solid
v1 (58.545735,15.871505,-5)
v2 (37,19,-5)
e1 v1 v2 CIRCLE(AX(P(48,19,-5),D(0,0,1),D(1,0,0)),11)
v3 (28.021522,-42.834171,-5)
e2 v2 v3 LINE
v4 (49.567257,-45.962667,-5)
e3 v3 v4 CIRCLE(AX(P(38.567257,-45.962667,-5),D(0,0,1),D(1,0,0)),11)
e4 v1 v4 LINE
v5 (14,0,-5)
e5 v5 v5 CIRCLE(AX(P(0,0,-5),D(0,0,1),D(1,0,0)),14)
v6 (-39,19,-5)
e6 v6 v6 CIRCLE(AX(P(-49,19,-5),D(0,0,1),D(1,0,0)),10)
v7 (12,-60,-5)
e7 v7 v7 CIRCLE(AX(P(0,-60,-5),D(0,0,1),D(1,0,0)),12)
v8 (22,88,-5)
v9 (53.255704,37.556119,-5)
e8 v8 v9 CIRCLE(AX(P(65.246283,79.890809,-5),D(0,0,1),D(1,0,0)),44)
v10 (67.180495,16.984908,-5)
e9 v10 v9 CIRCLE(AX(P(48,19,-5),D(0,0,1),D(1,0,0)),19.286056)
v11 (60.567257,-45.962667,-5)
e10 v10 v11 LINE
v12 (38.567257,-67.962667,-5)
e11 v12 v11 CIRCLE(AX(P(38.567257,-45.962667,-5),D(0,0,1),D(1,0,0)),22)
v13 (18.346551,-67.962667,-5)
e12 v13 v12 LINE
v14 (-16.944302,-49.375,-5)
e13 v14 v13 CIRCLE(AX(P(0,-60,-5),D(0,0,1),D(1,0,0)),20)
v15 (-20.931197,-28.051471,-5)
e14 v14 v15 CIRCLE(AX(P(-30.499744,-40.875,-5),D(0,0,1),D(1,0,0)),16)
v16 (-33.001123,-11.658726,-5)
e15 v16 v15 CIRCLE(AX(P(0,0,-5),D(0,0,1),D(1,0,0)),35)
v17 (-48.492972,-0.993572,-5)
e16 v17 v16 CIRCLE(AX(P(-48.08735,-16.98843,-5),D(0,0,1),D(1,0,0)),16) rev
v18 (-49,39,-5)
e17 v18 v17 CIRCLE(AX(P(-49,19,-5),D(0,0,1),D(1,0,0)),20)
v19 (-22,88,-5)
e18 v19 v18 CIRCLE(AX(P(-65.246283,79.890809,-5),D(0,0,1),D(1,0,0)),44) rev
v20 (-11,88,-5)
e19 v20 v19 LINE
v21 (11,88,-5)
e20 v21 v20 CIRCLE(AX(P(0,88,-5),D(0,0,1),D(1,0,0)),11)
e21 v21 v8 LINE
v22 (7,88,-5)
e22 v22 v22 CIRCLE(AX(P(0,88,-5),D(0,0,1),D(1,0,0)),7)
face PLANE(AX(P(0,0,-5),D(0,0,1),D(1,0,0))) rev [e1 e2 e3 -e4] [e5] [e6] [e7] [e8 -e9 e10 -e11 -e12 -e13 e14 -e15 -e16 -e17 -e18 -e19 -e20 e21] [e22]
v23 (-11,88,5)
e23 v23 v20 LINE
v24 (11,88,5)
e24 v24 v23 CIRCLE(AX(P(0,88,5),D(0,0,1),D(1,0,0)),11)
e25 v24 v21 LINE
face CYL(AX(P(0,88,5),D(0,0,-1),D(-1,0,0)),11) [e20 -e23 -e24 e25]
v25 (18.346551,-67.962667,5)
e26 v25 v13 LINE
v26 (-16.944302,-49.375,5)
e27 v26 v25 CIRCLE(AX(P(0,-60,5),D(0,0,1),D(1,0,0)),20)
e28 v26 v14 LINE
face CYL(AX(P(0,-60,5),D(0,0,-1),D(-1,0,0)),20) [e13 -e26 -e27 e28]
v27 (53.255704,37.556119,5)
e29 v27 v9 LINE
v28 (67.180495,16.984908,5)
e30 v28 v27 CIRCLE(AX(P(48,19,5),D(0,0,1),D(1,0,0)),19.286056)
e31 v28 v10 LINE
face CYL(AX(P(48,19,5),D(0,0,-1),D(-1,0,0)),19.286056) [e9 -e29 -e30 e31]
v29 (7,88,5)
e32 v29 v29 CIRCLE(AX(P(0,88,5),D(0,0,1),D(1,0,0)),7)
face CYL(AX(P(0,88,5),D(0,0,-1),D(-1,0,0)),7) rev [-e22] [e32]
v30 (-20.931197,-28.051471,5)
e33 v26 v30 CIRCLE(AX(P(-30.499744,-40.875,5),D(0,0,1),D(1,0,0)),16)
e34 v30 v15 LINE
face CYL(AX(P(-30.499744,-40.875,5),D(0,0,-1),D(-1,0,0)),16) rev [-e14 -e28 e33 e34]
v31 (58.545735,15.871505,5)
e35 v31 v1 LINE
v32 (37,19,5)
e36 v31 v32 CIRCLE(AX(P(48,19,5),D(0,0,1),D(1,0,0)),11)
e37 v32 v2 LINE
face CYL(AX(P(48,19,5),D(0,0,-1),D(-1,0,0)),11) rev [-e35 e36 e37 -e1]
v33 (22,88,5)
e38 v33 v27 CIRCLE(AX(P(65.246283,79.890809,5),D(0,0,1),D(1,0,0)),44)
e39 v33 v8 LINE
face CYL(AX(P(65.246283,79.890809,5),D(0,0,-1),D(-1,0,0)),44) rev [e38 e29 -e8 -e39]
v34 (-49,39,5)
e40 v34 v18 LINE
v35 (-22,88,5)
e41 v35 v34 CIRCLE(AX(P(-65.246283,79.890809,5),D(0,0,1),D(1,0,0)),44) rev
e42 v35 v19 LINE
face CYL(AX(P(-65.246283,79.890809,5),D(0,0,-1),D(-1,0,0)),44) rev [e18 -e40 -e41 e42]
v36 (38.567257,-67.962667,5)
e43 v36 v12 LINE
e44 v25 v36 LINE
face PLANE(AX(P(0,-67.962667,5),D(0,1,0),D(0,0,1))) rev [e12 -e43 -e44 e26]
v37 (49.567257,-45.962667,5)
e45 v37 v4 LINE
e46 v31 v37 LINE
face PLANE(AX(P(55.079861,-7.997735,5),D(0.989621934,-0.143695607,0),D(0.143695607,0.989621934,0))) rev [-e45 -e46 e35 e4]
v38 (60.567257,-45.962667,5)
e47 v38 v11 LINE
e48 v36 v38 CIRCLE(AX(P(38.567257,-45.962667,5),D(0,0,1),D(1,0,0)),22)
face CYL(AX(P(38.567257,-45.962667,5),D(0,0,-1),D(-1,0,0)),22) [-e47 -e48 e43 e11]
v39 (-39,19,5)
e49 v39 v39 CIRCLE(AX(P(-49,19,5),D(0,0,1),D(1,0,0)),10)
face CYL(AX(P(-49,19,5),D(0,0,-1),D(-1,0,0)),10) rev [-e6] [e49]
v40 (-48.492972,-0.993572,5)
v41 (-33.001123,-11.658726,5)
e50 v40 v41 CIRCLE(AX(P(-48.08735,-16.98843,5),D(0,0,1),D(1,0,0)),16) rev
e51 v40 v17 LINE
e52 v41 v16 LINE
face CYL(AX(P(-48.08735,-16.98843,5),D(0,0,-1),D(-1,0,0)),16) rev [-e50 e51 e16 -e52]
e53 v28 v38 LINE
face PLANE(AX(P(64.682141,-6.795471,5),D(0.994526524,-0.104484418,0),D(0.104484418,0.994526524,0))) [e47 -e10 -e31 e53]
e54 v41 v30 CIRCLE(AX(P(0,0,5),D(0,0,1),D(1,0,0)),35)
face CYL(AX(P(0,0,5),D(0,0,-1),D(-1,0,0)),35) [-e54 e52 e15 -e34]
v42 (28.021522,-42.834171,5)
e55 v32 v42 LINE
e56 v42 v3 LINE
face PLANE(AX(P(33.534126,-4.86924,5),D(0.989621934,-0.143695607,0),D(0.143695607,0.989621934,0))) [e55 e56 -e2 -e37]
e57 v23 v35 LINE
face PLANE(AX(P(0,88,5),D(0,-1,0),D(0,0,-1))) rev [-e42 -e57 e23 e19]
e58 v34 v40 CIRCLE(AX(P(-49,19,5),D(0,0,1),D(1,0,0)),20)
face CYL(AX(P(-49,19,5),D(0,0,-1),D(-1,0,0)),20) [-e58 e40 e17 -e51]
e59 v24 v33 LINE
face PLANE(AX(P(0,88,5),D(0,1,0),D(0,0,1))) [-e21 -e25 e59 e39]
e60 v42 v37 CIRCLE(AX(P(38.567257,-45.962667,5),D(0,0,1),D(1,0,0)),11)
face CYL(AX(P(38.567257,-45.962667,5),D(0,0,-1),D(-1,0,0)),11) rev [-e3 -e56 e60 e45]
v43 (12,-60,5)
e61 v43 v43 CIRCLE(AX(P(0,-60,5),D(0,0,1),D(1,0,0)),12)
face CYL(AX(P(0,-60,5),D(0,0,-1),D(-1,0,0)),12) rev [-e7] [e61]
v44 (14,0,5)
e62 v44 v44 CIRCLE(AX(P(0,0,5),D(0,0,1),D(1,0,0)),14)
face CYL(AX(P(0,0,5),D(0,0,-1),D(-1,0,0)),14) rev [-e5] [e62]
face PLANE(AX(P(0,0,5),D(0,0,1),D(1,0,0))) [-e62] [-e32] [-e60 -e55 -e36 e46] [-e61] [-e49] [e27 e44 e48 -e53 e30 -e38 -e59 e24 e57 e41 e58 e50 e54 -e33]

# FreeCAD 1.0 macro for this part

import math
import FreeCAD as App
import Part
import Sketcher
from FreeCAD import Vector

doc = App.newDocument("Part")
body = doc.addObject("PartDesign::Body", "Body")

sketch1 = body.newObject("Sketcher::SketchObject", "Sketch")
sketch1.AttachmentSupport = (doc.getObject("XY_Plane"), [""])
sketch1.MapMode = "FlatFace"
sketch1.addGeometry(Part.ArcOfCircle(Part.Circle(Vector(0, 88, 0), Vector(0, 0, 1), 11), math.radians(0), math.radians(180)), False)
sketch1.addGeometry(Part.LineSegment(Vector(-11, 88, 0), Vector(-22, 88, 0)), False)
sketch1.addGeometry(Part.ArcOfCircle(Part.Circle(Vector(-65.246283, 79.890809, 0), Vector(0, 0, 1), 44), math.radians(-68.331634), math.radians(10.620311)), False)
sketch1.addGeometry(Part.ArcOfCircle(Part.Circle(Vector(-49, 19, 0), Vector(0, 0, 1), 20), math.radians(90), math.radians(271.452683)), False)
sketch1.addGeometry(Part.ArcOfCircle(Part.Circle(Vector(-48.08735, -16.98843, 0), Vector(0, 0, 1), 16), math.radians(19.457434), math.radians(91.452683)), False)
sketch1.addGeometry(Part.ArcOfCircle(Part.Circle(Vector(0, 0, 0), Vector(0, 0, 1), 35), math.radians(-160.542566), math.radians(-126.729236)), False)
sketch1.addGeometry(Part.ArcOfCircle(Part.Circle(Vector(-30.499744, -40.875, 0), Vector(0, 0, 1), 16), math.radians(-32.089951), math.radians(53.270764)), False)
sketch1.addGeometry(Part.ArcOfCircle(Part.Circle(Vector(0, -60, 0), Vector(0, 0, 1), 20), math.radians(147.910049), math.radians(336.538464)), False)
sketch1.addGeometry(Part.LineSegment(Vector(18.346551, -67.962667, 0), Vector(38.567257, -67.962667, 0)), False)
sketch1.addGeometry(Part.ArcOfCircle(Part.Circle(Vector(38.567257, -45.962667, 0), Vector(0, 0, 1), 22), math.radians(-90), math.radians(0)), False)
sketch1.addGeometry(Part.LineSegment(Vector(60.567257, -45.962667, 0), Vector(67.180495, 16.984908, 0)), False)
sketch1.addGeometry(Part.ArcOfCircle(Part.Circle(Vector(48, 19, 0), Vector(0, 0, 1), 19.286056), math.radians(-5.997462), math.radians(74.18613)), False)
sketch1.addGeometry(Part.ArcOfCircle(Part.Circle(Vector(65.246283, 79.890809, 0), Vector(0, 0, 1), 44), math.radians(169.379689), math.radians(254.18613)), False)
sketch1.addGeometry(Part.LineSegment(Vector(22, 88, 0), Vector(11, 88, 0)), False)
sketch1.addGeometry(Part.Circle(Vector(0, -60, 0), Vector(0, 0, 1), 12), False)
sketch1.addGeometry(Part.Circle(Vector(0, 0, 0), Vector(0, 0, 1), 14), False)
sketch1.addGeometry(Part.LineSegment(Vector(28.021522, -42.834171, 0), Vector(34.793025, 3.800712, 0)), False)
sketch1.addGeometry(Part.LineSegment(Vector(34.793025, 3.800712, 0), Vector(37, 19, 0)), False)
sketch1.addGeometry(Part.ArcOfCircle(Part.Circle(Vector(48, 19, 0), Vector(0, 0, 1), 11), math.radians(0), math.radians(180)), False)
sketch1.addGeometry(Part.ArcOfCircle(Part.Circle(Vector(48, 19, 0), Vector(0, 0, 1), 11), math.radians(-16.523504), math.radians(0)), False)
sketch1.addGeometry(Part.LineSegment(Vector(58.545735, 15.871505, 0), Vector(49.567257, -45.962667, 0)), False)
sketch1.addGeometry(Part.ArcOfCircle(Part.Circle(Vector(38.567257, -45.962667, 0), Vector(0, 0, 1), 11), math.radians(180), math.radians(360)), False)
sketch1.addGeometry(Part.ArcOfCircle(Part.Circle(Vector(38.567257, -45.962667, 0), Vector(0, 0, 1), 11), math.radians(163.476496), math.radians(180)), False)
sketch1.addGeometry(Part.Circle(Vector(-49, 19, 0), Vector(0, 0, 1), 10), False)
sketch1.addGeometry(Part.Circle(Vector(0, 88, 0), Vector(0, 0, 1), 7), False)
sketch1.addConstraint(Sketcher.Constraint("Coincident", 0, 2, 1, 1))
sketch1.addConstraint(Sketcher.Constraint("Coincident", 1, 2, 2, 2))
sketch1.addConstraint(Sketcher.Constraint("Coincident", 2, 1, 3, 1))
sketch1.addConstraint(Sketcher.Constraint("Tangent", 3, 2, 4, 2))
sketch1.addConstraint(Sketcher.Constraint("Tangent", 4, 1, 5, 1))
sketch1.addConstraint(Sketcher.Constraint("Tangent", 5, 2, 6, 2))
sketch1.addConstraint(Sketcher.Constraint("Tangent", 6, 1, 7, 1))
sketch1.addConstraint(Sketcher.Constraint("Coincident", 7, 2, 8, 1))
sketch1.addConstraint(Sketcher.Constraint("Tangent", 8, 2, 9, 1))
sketch1.addConstraint(Sketcher.Constraint("Coincident", 9, 2, 10, 1))
sketch1.addConstraint(Sketcher.Constraint("Tangent", 10, 2, 11, 1))
sketch1.addConstraint(Sketcher.Constraint("Tangent", 11, 2, 12, 2))
sketch1.addConstraint(Sketcher.Constraint("Coincident", 12, 1, 13, 1))
sketch1.addConstraint(Sketcher.Constraint("Coincident", 13, 2, 0, 1))
sketch1.addConstraint(Sketcher.Constraint("Coincident", 16, 2, 17, 1))
sketch1.addConstraint(Sketcher.Constraint("Coincident", 17, 2, 18, 2))
sketch1.addConstraint(Sketcher.Constraint("Tangent", 18, 1, 19, 2))
sketch1.addConstraint(Sketcher.Constraint("Coincident", 19, 1, 20, 1))
sketch1.addConstraint(Sketcher.Constraint("Coincident", 20, 2, 21, 2))
sketch1.addConstraint(Sketcher.Constraint("Tangent", 21, 1, 22, 2))
sketch1.addConstraint(Sketcher.Constraint("Coincident", 22, 1, 16, 1))
sketch1.addConstraint(Sketcher.Constraint("Horizontal", 1))
sketch1.addConstraint(Sketcher.Constraint("Horizontal", 8))
sketch1.addConstraint(Sketcher.Constraint("Horizontal", 13))
sketch1.addConstraint(Sketcher.Constraint("Coincident", 5, 3, -1, 1))
sketch1.addConstraint(Sketcher.Constraint("Coincident", 15, 3, -1, 1))
sketch1.addConstraint(Sketcher.Constraint("Coincident", 14, 3, 7, 3))
sketch1.addConstraint(Sketcher.Constraint("Coincident", 18, 3, 11, 3))
sketch1.addConstraint(Sketcher.Constraint("Coincident", 21, 3, 9, 3))
sketch1.addConstraint(Sketcher.Constraint("Coincident", 23, 3, 3, 3))
sketch1.addConstraint(Sketcher.Constraint("Coincident", 24, 3, 0, 3))
sketch1.addConstraint(Sketcher.Constraint("Equal", 4, 6))
sketch1.addConstraint(Sketcher.Constraint("Equal", 3, 7))
sketch1.addConstraint(Sketcher.Constraint("Equal", 2, 12))
sketch1.addConstraint(Sketcher.Constraint("Equal", 0, 18))
sketch1.addConstraint(Sketcher.Constraint("Equal", 18, 19))
sketch1.addConstraint(Sketcher.Constraint("Equal", 19, 21))
sketch1.addConstraint(Sketcher.Constraint("Equal", 21, 22))
sketch1.addConstraint(Sketcher.Constraint("Symmetric", 2, 3, 12, 3, -2))
sketch1.addConstraint(Sketcher.Constraint("Symmetric", 0, 2, 13, 2, -2))
sketch1.addConstraint(Sketcher.Constraint("PointOnObject", 7, 3, -2))
sketch1.addConstraint(Sketcher.Constraint("Parallel", 16, 17))
sketch1.addConstraint(Sketcher.Constraint("Parallel", 17, 20))
sketch1.addConstraint(Sketcher.Constraint("Horizontal", 3, 3, 11, 3))
sketch1.addConstraint(Sketcher.Constraint("Horizontal", 24, 3, 0, 2))
sketch1.addConstraint(Sketcher.Constraint("Horizontal", 22, 3, 9, 2))
sketch1.addConstraint(Sketcher.Constraint("Horizontal", 23, 3, 17, 2))
sketch1.addConstraint(Sketcher.Constraint("Horizontal", 17, 2, 18, 1))
sketch1.addConstraint(Sketcher.Constraint("Horizontal", 9, 2, 20, 2))
sketch1.addConstraint(Sketcher.Constraint("Horizontal", 20, 2, 21, 1))
sketch1.addConstraint(Sketcher.Constraint("Vertical", 23, 3, 2, 1))
sketch1.addConstraint(Sketcher.Constraint("Diameter", 14, 24.0))
sketch1.addConstraint(Sketcher.Constraint("Diameter", 15, 28.0))
sketch1.addConstraint(Sketcher.Constraint("Diameter", 23, 20.0))
sketch1.addConstraint(Sketcher.Constraint("Diameter", 24, 14.0))
sketch1.addConstraint(Sketcher.Constraint("Radius", 0, 11.0))
sketch1.addConstraint(Sketcher.Constraint("Radius", 2, 44.0))
sketch1.addConstraint(Sketcher.Constraint("Radius", 3, 20.0))
sketch1.addConstraint(Sketcher.Constraint("Radius", 4, 16.0))
sketch1.addConstraint(Sketcher.Constraint("Radius", 5, 35.0))
sketch1.addConstraint(Sketcher.Constraint("Radius", 9, 22.0))
sketch1.addConstraint(Sketcher.Constraint("DistanceX", 1, 2, 1, 1, 11.0))
sketch1.addConstraint(Sketcher.Constraint("DistanceY", -1, 1, 0, 3, 88.0))
sketch1.addConstraint(Sketcher.Constraint("DistanceX", 3, 3, -1, 1, 49.0))
sketch1.addConstraint(Sketcher.Constraint("DistanceY", -1, 1, 3, 3, 19.0))
sketch1.addConstraint(Sketcher.Constraint("DistanceY", 7, 3, -1, 1, 60.0))
sketch1.addConstraint(Sketcher.Constraint("DistanceX", -1, 1, 11, 3, 48.0))
sketch1.addConstraint(Sketcher.Constraint("DistanceX", 6, 3, 9, 3, 69.067))
sketch1.addConstraint(Sketcher.Constraint("DistanceY", 10, 2, 12, 3, 62.905902))
sketch1.addConstraint(Sketcher.Constraint("Distance", 16, 47.123939))
sketch1.addConstraint(Sketcher.Constraint("Distance", 17, 15.358681))
pad1 = body.newObject("PartDesign::Pad", "Pad")
pad1.Profile = sketch1
pad1.Length = 10
pad1.Midplane = True

doc.recompute()
